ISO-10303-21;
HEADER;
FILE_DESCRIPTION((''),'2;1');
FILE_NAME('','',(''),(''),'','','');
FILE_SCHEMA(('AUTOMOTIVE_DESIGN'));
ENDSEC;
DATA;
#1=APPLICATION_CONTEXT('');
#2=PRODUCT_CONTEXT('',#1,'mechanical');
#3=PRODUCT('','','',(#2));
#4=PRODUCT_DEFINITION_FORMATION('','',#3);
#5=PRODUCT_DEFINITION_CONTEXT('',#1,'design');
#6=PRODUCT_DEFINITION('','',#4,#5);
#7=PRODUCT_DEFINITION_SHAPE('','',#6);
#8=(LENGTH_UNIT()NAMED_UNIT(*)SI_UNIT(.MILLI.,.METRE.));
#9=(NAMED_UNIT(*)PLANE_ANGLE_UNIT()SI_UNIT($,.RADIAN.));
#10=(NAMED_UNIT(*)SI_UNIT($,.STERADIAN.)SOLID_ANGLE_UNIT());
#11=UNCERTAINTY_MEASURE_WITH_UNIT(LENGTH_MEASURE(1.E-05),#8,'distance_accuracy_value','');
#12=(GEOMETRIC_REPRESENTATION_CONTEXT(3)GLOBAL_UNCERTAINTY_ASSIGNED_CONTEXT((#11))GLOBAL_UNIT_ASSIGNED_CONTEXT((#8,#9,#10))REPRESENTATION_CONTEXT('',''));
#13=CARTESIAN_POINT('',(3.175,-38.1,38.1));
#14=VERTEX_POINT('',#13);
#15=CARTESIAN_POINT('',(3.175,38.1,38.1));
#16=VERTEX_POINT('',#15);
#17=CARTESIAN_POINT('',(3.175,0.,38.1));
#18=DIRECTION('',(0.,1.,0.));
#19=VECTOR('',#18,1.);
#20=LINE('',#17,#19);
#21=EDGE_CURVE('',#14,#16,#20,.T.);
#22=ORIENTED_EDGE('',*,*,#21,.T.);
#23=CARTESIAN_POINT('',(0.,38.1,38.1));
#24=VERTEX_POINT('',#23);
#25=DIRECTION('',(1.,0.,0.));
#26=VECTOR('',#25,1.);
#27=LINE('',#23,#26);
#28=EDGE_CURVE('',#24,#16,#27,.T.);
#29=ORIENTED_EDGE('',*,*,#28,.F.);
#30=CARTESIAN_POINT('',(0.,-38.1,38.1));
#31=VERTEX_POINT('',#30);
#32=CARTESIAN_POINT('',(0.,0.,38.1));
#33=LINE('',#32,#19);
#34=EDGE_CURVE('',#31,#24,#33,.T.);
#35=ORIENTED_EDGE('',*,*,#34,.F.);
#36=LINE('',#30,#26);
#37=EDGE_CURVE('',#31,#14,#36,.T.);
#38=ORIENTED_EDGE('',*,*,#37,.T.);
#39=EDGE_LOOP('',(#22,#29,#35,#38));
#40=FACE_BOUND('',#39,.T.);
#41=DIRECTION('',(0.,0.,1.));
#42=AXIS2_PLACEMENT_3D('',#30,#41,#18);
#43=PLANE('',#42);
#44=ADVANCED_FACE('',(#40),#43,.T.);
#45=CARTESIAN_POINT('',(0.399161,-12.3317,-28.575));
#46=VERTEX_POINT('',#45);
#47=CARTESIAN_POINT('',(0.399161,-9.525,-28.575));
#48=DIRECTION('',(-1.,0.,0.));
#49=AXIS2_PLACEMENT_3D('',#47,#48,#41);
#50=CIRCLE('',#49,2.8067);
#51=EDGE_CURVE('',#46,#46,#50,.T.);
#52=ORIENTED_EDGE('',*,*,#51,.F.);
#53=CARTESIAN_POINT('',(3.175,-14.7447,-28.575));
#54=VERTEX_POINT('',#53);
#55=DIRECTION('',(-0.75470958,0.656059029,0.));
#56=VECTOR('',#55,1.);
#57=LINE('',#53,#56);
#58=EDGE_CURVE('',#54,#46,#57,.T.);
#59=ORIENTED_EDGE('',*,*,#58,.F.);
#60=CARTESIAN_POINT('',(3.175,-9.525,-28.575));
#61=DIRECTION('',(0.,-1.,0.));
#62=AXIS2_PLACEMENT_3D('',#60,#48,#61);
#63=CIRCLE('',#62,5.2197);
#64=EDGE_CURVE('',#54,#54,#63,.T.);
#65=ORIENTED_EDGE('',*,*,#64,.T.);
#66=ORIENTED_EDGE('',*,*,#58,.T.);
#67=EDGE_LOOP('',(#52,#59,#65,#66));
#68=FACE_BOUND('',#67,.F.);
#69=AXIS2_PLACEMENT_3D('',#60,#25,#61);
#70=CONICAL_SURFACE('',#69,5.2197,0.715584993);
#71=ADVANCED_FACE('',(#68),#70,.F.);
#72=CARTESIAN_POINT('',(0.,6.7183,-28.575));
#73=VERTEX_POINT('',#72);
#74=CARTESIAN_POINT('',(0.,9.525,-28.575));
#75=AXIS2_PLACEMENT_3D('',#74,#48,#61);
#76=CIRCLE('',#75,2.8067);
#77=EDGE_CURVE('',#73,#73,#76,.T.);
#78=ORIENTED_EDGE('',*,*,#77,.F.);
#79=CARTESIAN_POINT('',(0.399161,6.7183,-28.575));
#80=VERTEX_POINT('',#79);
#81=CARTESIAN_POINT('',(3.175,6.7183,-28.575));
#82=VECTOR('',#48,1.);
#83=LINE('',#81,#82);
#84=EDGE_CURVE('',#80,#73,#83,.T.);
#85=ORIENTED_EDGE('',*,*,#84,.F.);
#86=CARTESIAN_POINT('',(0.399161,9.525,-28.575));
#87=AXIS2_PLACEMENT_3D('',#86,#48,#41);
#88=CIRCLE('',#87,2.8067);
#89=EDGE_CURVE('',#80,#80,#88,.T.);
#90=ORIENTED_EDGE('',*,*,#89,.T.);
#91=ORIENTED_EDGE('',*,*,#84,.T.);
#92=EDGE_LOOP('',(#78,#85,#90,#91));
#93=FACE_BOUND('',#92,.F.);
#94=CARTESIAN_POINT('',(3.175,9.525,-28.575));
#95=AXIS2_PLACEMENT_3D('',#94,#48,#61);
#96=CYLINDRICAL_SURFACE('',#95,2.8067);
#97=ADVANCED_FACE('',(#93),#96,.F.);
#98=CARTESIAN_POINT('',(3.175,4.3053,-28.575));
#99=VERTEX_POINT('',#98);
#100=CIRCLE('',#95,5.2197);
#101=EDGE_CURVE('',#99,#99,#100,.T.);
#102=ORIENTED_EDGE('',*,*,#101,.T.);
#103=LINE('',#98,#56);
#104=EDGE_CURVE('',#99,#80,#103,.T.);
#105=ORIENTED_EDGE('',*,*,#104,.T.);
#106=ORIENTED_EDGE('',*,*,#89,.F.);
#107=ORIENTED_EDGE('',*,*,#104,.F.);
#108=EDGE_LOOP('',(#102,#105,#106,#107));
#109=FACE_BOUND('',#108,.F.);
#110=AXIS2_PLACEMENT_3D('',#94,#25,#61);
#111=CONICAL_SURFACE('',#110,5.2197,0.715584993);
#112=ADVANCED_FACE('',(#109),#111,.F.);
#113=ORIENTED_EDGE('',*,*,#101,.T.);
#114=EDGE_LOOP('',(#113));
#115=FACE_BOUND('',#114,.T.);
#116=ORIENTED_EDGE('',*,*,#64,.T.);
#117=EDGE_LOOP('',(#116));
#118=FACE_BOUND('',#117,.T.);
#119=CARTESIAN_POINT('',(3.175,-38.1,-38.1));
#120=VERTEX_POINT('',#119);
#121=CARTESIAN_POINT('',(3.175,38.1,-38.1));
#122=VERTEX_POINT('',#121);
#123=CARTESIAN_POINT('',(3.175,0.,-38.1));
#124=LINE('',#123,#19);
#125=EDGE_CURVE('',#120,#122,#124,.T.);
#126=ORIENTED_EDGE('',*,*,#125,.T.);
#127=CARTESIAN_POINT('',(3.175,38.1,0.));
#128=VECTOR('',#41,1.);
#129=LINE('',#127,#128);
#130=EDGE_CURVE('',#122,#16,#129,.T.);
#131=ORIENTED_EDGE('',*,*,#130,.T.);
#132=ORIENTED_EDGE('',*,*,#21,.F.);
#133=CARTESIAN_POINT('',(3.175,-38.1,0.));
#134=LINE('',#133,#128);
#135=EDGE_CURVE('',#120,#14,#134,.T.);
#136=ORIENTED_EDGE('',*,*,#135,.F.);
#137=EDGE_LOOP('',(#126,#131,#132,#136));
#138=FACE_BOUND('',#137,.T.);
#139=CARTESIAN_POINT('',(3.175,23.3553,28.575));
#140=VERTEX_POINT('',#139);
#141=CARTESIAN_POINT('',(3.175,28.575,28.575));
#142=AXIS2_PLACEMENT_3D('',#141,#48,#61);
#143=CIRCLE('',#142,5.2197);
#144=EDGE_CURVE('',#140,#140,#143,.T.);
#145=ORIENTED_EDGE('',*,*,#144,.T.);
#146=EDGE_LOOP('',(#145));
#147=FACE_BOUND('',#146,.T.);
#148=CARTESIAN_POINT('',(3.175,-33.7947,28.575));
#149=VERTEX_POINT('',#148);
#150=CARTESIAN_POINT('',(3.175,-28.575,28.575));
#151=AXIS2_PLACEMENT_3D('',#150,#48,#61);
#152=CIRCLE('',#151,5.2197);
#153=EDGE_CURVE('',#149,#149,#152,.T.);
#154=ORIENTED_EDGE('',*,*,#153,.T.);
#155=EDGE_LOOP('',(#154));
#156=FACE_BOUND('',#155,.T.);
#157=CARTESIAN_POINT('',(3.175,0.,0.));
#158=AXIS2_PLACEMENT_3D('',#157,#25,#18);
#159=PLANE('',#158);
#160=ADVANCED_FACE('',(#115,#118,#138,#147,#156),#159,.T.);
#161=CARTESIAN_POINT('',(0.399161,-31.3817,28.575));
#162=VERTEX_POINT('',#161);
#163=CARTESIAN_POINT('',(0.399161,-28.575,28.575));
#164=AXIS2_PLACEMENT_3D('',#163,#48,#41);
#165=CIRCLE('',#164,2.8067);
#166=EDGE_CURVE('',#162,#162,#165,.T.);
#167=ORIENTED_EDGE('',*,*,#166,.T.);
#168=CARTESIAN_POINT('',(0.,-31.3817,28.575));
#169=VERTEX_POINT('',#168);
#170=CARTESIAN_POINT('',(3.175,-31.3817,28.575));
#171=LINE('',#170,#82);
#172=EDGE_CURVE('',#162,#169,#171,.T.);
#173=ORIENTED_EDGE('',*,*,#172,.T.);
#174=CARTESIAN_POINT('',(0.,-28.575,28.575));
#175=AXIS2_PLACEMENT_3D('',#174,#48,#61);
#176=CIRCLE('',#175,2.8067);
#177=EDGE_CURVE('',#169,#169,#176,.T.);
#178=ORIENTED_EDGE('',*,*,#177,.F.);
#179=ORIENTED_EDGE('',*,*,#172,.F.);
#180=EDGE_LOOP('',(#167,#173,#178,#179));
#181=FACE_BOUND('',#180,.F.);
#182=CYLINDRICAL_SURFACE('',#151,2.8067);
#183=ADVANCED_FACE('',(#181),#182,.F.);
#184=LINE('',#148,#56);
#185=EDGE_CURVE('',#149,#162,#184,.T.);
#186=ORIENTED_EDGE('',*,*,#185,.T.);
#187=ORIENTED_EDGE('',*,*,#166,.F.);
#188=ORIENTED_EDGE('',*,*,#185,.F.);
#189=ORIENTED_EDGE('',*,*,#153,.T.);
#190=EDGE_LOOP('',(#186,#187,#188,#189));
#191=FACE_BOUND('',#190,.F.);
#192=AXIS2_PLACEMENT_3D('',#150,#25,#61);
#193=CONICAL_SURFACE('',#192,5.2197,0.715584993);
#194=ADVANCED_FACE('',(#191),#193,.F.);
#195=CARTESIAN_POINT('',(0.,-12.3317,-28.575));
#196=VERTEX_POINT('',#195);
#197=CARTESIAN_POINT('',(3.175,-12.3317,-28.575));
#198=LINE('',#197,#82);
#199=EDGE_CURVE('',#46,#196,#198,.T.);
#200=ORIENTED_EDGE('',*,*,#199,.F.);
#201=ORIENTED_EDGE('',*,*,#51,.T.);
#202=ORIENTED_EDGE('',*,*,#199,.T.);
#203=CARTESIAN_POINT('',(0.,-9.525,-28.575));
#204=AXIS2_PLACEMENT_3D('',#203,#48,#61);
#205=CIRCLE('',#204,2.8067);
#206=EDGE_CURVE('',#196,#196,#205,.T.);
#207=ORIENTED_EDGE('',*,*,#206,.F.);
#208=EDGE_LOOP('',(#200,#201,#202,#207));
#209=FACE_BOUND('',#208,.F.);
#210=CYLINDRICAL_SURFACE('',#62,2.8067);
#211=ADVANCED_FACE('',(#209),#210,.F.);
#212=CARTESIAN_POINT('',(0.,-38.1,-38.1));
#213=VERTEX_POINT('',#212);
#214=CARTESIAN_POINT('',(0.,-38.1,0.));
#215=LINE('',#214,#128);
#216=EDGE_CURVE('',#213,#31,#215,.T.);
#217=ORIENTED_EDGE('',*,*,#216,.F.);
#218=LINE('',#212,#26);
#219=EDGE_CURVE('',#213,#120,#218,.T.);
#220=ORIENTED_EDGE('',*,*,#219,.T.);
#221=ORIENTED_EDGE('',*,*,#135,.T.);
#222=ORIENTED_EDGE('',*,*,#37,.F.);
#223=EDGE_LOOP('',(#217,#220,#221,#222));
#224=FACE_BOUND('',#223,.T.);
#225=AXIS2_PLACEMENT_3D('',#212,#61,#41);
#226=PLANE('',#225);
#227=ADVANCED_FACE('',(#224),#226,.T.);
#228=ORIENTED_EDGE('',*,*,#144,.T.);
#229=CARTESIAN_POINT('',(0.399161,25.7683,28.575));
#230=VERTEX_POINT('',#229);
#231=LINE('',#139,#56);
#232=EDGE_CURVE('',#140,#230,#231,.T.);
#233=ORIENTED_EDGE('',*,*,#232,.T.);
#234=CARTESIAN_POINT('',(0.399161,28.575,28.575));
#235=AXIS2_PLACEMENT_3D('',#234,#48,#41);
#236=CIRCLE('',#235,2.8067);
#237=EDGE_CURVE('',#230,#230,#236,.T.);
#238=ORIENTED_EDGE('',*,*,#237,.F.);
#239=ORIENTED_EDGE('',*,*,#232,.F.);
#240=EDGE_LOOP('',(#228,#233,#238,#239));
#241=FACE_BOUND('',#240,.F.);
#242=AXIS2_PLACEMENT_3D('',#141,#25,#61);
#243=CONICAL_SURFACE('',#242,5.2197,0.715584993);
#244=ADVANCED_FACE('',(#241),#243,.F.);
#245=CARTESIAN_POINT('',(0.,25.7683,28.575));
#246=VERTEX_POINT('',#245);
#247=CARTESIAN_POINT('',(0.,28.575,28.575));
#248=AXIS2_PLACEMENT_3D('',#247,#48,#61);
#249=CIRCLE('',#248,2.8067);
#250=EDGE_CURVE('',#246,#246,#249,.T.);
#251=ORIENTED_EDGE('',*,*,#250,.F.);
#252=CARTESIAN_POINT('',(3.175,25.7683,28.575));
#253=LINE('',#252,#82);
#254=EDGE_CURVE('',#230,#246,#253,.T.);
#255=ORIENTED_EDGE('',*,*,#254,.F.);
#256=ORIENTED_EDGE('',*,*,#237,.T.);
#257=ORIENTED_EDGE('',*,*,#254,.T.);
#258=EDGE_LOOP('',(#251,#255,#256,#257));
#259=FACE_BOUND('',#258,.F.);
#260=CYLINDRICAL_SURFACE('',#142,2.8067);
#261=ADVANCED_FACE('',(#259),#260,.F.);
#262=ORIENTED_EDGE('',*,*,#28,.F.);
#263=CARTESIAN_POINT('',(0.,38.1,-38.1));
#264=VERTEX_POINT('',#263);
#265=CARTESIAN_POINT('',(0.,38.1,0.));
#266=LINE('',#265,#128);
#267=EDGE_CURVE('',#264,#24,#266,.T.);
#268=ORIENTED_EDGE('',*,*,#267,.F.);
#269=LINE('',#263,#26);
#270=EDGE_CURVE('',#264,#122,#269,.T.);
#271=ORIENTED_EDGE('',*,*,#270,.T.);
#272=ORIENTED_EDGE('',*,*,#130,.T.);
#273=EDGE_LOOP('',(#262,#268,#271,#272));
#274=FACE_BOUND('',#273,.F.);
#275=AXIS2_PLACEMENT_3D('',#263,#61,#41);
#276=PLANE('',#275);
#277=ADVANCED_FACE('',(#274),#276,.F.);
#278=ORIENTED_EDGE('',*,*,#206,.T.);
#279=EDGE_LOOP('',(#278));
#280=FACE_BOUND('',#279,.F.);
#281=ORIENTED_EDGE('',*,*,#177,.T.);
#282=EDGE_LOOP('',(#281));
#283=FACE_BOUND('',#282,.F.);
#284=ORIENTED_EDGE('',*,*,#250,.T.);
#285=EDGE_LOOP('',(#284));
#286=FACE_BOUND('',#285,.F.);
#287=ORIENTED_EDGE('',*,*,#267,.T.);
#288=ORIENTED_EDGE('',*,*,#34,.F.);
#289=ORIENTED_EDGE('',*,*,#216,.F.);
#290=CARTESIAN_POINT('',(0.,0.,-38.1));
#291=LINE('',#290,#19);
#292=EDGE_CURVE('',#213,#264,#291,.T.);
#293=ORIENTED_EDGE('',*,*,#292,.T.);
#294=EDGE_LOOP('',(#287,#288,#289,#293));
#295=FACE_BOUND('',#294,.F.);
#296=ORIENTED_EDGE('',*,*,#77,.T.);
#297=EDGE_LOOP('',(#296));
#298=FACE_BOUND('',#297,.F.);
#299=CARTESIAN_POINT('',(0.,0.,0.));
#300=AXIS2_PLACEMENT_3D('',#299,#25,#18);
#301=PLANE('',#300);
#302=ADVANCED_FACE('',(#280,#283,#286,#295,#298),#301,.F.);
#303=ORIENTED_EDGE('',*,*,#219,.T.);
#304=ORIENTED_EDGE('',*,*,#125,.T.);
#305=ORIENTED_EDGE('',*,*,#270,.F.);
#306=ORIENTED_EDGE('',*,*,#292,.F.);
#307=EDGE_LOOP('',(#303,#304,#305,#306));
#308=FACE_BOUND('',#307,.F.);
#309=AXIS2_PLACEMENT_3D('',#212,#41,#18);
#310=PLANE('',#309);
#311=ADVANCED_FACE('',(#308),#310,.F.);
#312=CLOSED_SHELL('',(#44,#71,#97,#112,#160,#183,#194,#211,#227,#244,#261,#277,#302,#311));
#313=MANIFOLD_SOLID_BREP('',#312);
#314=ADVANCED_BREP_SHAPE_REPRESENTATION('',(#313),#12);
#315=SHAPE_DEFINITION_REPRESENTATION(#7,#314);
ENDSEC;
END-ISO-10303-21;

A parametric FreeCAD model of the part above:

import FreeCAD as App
import Part
import Sketcher

V = App.Vector
Q = App.Units.Quantity


def add_polygon(sketch, points):
    """Adds a closed chain of lines whose ends are joined by coincident constraints."""
    first, n = sketch.GeometryCount, len(points)
    for a, b in zip(points, points[1:] + points[:1]):
        sketch.addGeometry(Part.LineSegment(App.Vector(*a, 0), App.Vector(*b, 0)), False)
    for i in range(n):
        sketch.addConstraint(Sketcher.Constraint("Coincident", first + i, 2, first + (i + 1) % n, 1))

doc = App.newDocument("Part")
body = doc.addObject("PartDesign::Body", "Body")

# Sketch on YZ plane
sketch1 = body.newObject("Sketcher::SketchObject", "Sketch")
sketch1.AttachmentSupport = (doc.getObject("YZ_Plane"), [""])
sketch1.MapMode = "FlatFace"
add_polygon(sketch1, [(-38, 38), (-38, -38), (38, -38), (38, 38)])  # lines 0-3
sketch1.addConstraint(Sketcher.Constraint("Vertical", 0))
sketch1.addConstraint(Sketcher.Constraint("Horizontal", 1))
sketch1.addConstraint(Sketcher.Constraint("Vertical", 2))
sketch1.addConstraint(Sketcher.Constraint("Horizontal", 3))
sketch1.addConstraint(Sketcher.Constraint("Symmetric", 0, 2, 2, 2, -1, 1))
sketch1.addConstraint(Sketcher.Constraint("Equal", 3, 0))
sketch1.addConstraint(Sketcher.Constraint("DistanceX", 1, 1, 1, 2, Q("3 in")))
pad1 = body.newObject("PartDesign::Pad", "Pad")
pad1.Profile = sketch1
pad1.Length = Q("0.125 in")

# Sketch on YZ plane
sketch2 = body.newObject("Sketcher::SketchObject", "Sketch001")
sketch2.AttachmentSupport = (doc.getObject("YZ_Plane"), [""])
sketch2.MapMode = "FlatFace"
sketch2.AttachmentOffset = App.Placement(V(0, 0, 0.125 * 25.4), App.Rotation())
sketch2.addGeometry(Part.Circle(V(-28.6, 28.6, 0), V(0, 0, 1), 2.8), False)
sketch2.addGeometry(Part.Circle(V(28.6, 28.6, 0), V(0, 0, 1), 2.8), False)
sketch2.addGeometry(Part.Circle(V(9.5, -28.6, 0), V(0, 0, 1), 2.8), False)
sketch2.addGeometry(Part.Circle(V(-9.5, -28.6, 0), V(0, 0, 1), 2.8), False)
sketch2.addConstraint(Sketcher.Constraint("Equal", 0, 1))
sketch2.addConstraint(Sketcher.Constraint("Equal", 1, 2))
sketch2.addConstraint(Sketcher.Constraint("Equal", 2, 3))
sketch2.addConstraint(Sketcher.Constraint("Symmetric", 0, 3, 1, 3, -2))
sketch2.addConstraint(Sketcher.Constraint("Symmetric", 2, 3, 3, 3, -2))
sketch2.addConstraint(Sketcher.Constraint("Diameter", 0, Q("0.221 in")))
sketch2.addConstraint(Sketcher.Constraint("DistanceX", 0, 3, 2, 3, Q("1.5 in")))
sketch2.addConstraint(Sketcher.Constraint("DistanceX", 0, 3, 1, 3, Q("2.25 in")))
sketch2.addConstraint(Sketcher.Constraint("DistanceY", 2, 3, 1, 3, Q("2.25 in")))
sketch2.addConstraint(Sketcher.Constraint("DistanceY", -1, 1, 0, 3, Q("1.125 in")))
doc.recompute()
hole = body.newObject("PartDesign::Hole", "Hole")
hole.Profile = sketch2
hole.ThreadType = "None"
hole.Diameter = Q("0.221 in")
hole.DepthType = "ThroughAll"
hole.HoleCutType = "Countersink"
hole.HoleCutDiameter = Q("0.411 in")
hole.HoleCutCountersinkAngle = 82

doc.recompute()
